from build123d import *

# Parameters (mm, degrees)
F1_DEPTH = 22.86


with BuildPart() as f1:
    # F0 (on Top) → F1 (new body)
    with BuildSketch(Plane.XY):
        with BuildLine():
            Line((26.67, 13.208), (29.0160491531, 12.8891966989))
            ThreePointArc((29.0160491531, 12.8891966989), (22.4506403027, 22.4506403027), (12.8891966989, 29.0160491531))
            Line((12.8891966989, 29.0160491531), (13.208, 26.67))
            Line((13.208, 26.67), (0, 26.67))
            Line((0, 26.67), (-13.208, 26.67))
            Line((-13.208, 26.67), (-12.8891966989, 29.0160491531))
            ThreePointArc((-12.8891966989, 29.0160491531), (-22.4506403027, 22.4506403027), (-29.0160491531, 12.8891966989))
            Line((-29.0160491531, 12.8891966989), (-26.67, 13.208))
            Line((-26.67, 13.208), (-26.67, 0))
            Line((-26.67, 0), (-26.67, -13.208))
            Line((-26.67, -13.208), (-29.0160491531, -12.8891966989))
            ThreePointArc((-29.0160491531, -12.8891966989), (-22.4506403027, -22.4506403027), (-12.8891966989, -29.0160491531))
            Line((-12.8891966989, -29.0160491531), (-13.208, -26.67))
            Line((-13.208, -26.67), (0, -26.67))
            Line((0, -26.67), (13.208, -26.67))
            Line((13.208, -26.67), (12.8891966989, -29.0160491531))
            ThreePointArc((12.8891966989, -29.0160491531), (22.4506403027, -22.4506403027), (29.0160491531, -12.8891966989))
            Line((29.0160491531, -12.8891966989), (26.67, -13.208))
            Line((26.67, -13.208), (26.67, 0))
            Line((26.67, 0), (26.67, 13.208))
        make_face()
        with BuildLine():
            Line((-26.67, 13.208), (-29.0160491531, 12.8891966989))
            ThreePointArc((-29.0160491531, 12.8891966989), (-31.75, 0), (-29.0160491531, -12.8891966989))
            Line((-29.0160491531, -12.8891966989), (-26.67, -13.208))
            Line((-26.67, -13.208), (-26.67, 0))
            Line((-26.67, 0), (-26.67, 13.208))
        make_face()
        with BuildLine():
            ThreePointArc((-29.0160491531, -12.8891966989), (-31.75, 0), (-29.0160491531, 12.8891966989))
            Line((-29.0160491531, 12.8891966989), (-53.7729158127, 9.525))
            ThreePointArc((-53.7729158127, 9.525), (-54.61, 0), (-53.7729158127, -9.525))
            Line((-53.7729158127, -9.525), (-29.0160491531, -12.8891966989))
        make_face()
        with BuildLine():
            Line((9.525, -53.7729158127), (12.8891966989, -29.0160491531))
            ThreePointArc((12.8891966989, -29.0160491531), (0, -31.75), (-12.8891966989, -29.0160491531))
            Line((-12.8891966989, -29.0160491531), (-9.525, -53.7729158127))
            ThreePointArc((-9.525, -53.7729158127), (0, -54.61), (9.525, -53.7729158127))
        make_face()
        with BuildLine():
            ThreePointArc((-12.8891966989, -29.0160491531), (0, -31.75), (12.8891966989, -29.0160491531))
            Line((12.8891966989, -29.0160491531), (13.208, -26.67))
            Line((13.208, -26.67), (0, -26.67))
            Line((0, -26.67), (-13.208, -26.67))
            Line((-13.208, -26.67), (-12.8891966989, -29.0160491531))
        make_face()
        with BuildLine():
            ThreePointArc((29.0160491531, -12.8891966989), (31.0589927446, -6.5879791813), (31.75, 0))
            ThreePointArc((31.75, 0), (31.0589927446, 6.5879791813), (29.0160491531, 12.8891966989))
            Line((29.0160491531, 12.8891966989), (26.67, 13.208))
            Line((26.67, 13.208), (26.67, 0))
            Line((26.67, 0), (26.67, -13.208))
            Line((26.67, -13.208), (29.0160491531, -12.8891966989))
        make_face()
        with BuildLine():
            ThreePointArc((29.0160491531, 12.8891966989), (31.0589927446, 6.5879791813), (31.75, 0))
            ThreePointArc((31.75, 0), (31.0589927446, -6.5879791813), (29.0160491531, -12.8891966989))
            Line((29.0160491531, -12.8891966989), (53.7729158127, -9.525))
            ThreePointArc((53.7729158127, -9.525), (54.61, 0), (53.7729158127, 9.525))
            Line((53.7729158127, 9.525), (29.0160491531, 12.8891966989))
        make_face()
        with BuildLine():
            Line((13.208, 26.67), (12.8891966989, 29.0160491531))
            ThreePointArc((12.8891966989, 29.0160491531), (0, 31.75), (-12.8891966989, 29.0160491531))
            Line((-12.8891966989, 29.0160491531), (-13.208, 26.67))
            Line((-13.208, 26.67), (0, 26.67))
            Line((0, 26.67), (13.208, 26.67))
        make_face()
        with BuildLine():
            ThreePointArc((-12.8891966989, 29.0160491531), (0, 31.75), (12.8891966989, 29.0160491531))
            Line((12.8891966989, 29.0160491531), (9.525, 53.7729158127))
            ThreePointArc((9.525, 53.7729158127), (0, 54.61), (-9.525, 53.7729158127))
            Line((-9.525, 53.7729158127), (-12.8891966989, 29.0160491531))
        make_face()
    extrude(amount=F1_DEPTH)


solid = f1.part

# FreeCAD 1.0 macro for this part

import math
import FreeCAD as App
import Part
import Sketcher

V = App.Vector
Q = App.Units.Quantity

doc = App.newDocument("Part")
body = doc.addObject("PartDesign::Body", "Body")

# Sketch on XY plane
sketch1 = doc.addObject("Sketcher::SketchObject", "Sketch")
body.addObject(sketch1)
sketch1.AttachmentSupport = (doc.XY_Plane, [""])
sketch1.MapMode = "FlatFace"
sketch1.addGeometry([
    Part.ArcOfCircle(Part.Circle(V(0, 0, 0), V(0, 0, 1), 32), math.radians(24), math.radians(66)),  # 0
    Part.LineSegment(V(13, 29, 0), V(10, 54, 0)),  # 1
    Part.ArcOfCircle(Part.Circle(V(0, 0, 0), V(0, 0, 1), 55), math.radians(80), math.radians(100)),  # 2
    Part.LineSegment(V(-10, 54, 0), V(-13, 29, 0)),  # 3
    Part.ArcOfCircle(Part.Circle(V(0, 0, 0), V(0, 0, 1), 32), math.radians(114), math.radians(156)),  # 4
    Part.LineSegment(V(-29, 13, 0), V(-54, 10, 0)),  # 5
    Part.ArcOfCircle(Part.Circle(V(0, 0, 0), V(0, 0, 1), 55), math.radians(170), math.radians(190)),  # 6
    Part.LineSegment(V(-54, -10, 0), V(-29, -13, 0)),  # 7
    Part.ArcOfCircle(Part.Circle(V(0, 0, 0), V(0, 0, 1), 32), math.radians(-156), math.radians(-114)),  # 8
    Part.LineSegment(V(-13, -29, 0), V(-10, -54, 0)),  # 9
    Part.ArcOfCircle(Part.Circle(V(0, 0, 0), V(0, 0, 1), 55), math.radians(-100), math.radians(-80)),  # 10
    Part.LineSegment(V(10, -54, 0), V(13, -29, 0)),  # 11
    Part.ArcOfCircle(Part.Circle(V(0, 0, 0), V(0, 0, 1), 32), math.radians(-66), math.radians(-24)),  # 12
    Part.LineSegment(V(29, -13, 0), V(54, -10, 0)),  # 13
    Part.ArcOfCircle(Part.Circle(V(0, 0, 0), V(0, 0, 1), 55), math.radians(-10), math.radians(10)),  # 14
    Part.LineSegment(V(54, 10, 0), V(29, 13, 0)),  # 15
], False)
sketch1.addConstraint([
    Sketcher.Constraint("Coincident", 0, 2, 1, 1),
    Sketcher.Constraint("Coincident", 1, 2, 2, 1),
    Sketcher.Constraint("Coincident", 2, 2, 3, 1),
    Sketcher.Constraint("Coincident", 3, 2, 4, 1),
    Sketcher.Constraint("Coincident", 4, 2, 5, 1),
    Sketcher.Constraint("Coincident", 5, 2, 6, 1),
    Sketcher.Constraint("Coincident", 6, 2, 7, 1),
    Sketcher.Constraint("Coincident", 7, 2, 8, 1),
    Sketcher.Constraint("Coincident", 8, 2, 9, 1),
    Sketcher.Constraint("Coincident", 9, 2, 10, 1),
    Sketcher.Constraint("Coincident", 10, 2, 11, 1),
    Sketcher.Constraint("Coincident", 11, 2, 12, 1),
    Sketcher.Constraint("Coincident", 12, 2, 13, 1),
    Sketcher.Constraint("Coincident", 13, 2, 14, 1),
    Sketcher.Constraint("Coincident", 14, 2, 15, 1),
    Sketcher.Constraint("Coincident", 15, 2, 0, 1),
    Sketcher.Constraint("Coincident", 0, 3, -1, 1),
    Sketcher.Constraint("Coincident", 2, 3, -1, 1),
    Sketcher.Constraint("Coincident", 4, 3, -1, 1),
    Sketcher.Constraint("Coincident", 6, 3, -1, 1),
    Sketcher.Constraint("Coincident", 8, 3, -1, 1),
    Sketcher.Constraint("Coincident", 10, 3, -1, 1),
    Sketcher.Constraint("Coincident", 12, 3, -1, 1),
    Sketcher.Constraint("Coincident", 14, 3, -1, 1),
    Sketcher.Constraint("Equal", 0, 4),
    Sketcher.Constraint("Equal", 2, 6),
    Sketcher.Constraint("Equal", 4, 8),
    Sketcher.Constraint("Equal", 6, 10),
    Sketcher.Constraint("Equal", 8, 12),
    Sketcher.Constraint("Equal", 10, 14),
    Sketcher.Constraint("Perpendicular", 1, 5),
    Sketcher.Constraint("Perpendicular", 3, 7),
    Sketcher.Constraint("Perpendicular", 5, 9),
    Sketcher.Constraint("Perpendicular", 7, 11),
    Sketcher.Constraint("Perpendicular", 9, 13),
    Sketcher.Constraint("Perpendicular", 11, 15),
    Sketcher.Constraint("Horizontal", 1, 2, 2, 2),
    Sketcher.Constraint("Horizontal", 0, 2, 3, 2),
    Sketcher.Constraint("Horizontal", 9, 2, 10, 2),
    Sketcher.Constraint("Horizontal", 7, 2, 12, 2),
    Sketcher.Constraint("Horizontal", 5, 2, 14, 2),
    Sketcher.Constraint("Vertical", 5, 2, 6, 2),
    Sketcher.Constraint("Vertical", 3, 2, 8, 2),
    Sketcher.Constraint("Equal", 3, 5),
    Sketcher.Constraint("Radius", 0, Q("1.25 in")),
    Sketcher.Constraint("Radius", 2, Q("2.15 in")),
    Sketcher.Constraint("DistanceX", 2, 2, 1, 2, Q("0.75 in")),
    Sketcher.Constraint("Distance", 1, 24.9844),
])
pad1 = doc.addObject("PartDesign::Pad", "Pad")
body.addObject(pad1)
pad1.Profile = sketch1
pad1.Length = Q("0.9 in")

doc.recompute()
